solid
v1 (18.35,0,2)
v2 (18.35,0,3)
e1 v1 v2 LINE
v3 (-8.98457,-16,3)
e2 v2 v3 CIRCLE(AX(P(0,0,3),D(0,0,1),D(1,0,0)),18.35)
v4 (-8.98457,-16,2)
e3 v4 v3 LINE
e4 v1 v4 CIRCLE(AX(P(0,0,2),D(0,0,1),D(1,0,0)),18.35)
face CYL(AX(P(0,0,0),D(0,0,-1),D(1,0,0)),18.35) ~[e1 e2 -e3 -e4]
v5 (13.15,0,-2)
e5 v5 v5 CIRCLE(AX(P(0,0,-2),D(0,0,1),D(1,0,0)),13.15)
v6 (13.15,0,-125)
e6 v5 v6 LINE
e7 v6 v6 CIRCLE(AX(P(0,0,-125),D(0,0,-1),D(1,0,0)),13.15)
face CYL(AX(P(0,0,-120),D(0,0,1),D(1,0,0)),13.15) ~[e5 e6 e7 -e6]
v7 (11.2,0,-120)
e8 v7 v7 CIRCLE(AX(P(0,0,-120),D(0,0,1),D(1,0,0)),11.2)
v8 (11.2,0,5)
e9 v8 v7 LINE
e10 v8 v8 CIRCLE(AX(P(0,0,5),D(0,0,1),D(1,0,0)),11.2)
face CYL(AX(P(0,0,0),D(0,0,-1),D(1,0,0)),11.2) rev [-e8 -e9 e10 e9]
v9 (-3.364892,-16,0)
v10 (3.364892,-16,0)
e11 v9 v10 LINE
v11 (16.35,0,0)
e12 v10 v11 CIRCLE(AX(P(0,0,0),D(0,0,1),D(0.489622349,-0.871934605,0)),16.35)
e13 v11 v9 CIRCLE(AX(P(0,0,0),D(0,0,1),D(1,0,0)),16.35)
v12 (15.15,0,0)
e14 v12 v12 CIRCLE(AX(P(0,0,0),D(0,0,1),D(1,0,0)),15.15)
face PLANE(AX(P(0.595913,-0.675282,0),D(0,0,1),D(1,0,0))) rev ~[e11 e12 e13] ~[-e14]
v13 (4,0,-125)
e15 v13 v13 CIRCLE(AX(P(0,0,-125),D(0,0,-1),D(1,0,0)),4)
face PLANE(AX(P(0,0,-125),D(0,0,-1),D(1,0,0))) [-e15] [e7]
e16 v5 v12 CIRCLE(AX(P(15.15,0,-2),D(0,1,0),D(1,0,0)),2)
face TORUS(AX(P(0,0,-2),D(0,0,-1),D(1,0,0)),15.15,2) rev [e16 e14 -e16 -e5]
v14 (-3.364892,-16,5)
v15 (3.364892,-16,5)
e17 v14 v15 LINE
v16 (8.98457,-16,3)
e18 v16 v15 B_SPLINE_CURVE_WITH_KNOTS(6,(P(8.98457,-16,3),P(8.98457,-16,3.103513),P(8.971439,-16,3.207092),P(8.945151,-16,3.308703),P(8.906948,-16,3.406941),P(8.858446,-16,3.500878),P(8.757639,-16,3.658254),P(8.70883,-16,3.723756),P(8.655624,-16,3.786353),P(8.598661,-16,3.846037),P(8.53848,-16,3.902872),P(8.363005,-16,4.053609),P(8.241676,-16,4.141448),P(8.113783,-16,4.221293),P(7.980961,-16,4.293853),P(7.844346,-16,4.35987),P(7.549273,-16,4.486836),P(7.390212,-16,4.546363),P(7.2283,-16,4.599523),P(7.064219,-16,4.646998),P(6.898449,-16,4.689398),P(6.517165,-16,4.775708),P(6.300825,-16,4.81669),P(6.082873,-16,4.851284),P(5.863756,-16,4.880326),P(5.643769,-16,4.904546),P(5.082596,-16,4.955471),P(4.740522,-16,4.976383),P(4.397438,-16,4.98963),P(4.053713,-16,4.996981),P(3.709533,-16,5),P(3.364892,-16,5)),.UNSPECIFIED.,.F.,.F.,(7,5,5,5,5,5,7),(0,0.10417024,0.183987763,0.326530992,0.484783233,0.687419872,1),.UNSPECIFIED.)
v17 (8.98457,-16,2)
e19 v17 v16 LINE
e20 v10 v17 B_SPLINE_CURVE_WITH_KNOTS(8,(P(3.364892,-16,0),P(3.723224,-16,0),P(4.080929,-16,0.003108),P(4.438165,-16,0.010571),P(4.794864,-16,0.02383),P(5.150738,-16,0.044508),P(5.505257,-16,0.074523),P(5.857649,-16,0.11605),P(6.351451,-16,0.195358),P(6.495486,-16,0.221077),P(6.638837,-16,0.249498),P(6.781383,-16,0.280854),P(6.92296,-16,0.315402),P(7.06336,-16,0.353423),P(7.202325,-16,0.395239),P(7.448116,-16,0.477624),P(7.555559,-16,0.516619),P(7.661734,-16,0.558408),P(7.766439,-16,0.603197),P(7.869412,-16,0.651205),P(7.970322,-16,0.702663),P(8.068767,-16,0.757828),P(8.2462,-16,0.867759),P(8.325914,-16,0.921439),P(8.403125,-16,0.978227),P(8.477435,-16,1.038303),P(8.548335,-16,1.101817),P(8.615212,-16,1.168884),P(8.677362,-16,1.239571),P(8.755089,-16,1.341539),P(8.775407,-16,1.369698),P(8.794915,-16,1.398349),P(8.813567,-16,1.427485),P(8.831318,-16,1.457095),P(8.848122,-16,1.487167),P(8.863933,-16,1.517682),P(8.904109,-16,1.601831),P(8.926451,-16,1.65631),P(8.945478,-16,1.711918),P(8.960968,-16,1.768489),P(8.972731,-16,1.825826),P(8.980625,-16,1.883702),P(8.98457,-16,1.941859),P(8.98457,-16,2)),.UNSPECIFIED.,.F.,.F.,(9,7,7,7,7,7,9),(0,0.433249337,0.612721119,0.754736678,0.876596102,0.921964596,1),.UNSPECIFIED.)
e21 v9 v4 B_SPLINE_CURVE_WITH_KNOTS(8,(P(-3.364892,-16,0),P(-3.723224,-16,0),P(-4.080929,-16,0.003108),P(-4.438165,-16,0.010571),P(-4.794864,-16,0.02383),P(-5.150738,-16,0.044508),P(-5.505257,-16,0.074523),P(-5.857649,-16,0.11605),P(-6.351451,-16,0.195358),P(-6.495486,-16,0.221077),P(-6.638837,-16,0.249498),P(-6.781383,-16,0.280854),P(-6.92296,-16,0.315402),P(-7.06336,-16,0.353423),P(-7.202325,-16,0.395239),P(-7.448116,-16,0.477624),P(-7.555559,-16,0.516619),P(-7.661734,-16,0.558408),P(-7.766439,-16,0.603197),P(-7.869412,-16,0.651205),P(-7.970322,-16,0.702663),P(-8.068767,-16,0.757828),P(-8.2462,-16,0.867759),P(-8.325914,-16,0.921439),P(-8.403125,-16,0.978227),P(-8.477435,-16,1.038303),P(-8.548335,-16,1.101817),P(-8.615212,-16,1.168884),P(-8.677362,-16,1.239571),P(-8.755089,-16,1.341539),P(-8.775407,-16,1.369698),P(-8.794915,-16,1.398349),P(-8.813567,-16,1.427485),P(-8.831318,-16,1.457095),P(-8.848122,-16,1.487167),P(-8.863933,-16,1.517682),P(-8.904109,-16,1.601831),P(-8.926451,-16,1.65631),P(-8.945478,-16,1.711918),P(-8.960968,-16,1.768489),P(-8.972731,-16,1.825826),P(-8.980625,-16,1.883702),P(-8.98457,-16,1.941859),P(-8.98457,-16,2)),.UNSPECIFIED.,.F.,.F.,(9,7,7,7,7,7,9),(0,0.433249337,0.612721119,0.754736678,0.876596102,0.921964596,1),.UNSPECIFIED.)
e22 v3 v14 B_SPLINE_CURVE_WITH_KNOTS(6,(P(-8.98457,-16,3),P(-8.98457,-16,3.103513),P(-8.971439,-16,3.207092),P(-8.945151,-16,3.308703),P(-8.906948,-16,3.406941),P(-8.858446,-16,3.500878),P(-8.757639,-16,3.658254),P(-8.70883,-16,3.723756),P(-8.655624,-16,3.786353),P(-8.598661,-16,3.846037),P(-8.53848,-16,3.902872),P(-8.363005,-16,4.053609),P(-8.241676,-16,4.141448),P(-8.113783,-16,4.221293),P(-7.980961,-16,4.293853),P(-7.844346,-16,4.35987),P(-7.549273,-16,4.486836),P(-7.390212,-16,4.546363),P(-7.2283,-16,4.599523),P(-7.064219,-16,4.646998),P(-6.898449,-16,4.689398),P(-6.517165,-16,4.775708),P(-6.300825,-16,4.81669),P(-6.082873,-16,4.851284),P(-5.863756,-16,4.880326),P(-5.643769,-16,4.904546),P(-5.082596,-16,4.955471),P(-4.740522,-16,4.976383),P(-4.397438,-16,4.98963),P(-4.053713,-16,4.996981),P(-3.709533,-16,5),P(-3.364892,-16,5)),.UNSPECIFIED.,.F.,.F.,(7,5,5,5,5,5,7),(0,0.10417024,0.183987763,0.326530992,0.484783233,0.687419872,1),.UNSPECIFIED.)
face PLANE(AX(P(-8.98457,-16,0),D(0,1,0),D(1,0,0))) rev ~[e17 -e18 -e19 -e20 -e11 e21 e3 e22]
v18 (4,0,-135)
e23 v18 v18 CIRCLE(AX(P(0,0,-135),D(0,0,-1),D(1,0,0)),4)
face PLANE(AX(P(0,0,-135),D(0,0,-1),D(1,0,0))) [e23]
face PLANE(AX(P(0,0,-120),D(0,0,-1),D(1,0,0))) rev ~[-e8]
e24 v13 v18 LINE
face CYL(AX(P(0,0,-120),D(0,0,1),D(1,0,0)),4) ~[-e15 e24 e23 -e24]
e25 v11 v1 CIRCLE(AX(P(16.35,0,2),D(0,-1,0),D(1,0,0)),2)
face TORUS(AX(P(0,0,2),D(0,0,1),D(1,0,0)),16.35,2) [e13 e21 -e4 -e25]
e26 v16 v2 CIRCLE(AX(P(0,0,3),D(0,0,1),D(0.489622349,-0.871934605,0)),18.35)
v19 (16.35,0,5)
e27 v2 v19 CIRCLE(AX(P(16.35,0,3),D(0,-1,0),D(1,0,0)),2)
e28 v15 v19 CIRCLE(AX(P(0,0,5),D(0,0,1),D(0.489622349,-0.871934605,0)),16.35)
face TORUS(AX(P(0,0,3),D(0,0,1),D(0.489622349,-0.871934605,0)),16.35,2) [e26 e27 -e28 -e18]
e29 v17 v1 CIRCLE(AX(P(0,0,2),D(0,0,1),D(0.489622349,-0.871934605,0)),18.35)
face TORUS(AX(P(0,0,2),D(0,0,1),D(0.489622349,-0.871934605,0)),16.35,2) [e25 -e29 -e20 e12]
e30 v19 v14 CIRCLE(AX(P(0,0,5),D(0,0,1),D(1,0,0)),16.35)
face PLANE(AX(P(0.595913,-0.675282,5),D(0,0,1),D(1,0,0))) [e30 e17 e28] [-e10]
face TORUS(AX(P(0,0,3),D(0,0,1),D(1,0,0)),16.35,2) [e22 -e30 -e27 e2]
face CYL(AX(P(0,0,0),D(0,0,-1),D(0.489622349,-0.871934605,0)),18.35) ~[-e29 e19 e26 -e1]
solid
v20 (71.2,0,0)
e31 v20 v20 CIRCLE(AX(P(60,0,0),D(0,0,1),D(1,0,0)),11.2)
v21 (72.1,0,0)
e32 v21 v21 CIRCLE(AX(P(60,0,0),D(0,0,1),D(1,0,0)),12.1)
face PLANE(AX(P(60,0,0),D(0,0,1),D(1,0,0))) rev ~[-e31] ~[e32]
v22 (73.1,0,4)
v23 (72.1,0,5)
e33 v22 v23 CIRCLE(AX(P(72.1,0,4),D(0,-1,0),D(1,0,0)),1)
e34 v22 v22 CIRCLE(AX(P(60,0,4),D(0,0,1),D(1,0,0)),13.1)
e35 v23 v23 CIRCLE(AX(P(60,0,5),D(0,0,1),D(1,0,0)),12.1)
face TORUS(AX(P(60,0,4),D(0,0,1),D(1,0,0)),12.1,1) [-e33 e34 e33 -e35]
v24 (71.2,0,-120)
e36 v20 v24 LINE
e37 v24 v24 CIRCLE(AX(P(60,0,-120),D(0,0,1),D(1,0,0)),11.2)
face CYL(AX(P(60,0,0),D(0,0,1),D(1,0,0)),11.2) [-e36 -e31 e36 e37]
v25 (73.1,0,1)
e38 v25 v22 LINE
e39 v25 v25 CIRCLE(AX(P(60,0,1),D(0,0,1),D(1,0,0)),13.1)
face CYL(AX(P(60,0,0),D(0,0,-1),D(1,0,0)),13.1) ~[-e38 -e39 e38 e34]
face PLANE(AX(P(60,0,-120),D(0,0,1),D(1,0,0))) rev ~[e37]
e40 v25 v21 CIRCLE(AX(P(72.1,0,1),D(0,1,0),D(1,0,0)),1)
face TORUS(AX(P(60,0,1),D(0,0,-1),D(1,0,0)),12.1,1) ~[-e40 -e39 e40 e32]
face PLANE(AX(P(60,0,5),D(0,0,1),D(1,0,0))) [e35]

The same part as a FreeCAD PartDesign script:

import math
import FreeCAD as App
import Part
import Sketcher
Q = App.Units.Quantity


def edges_at(feature, points):
    """Names of the edges that pass closest to the given points."""
    edges = feature.Shape.Edges
    near = lambda p: min(range(len(edges)), key=lambda i: edges[i].distToShape(Part.Vertex(*p))[0])
    return sorted({f"Edge{near(p) + 1}" for p in points})

doc = App.newDocument("Part")
body = doc.addObject("PartDesign::Body", "Body")

sketch1 = body.newObject("Sketcher::SketchObject", "Sketch")
sketch1.AttachmentSupport = (doc.getObject("XY_Plane"), [""])
sketch1.MapMode = "FlatFace"
sketch1.addGeometry([
    Part.ArcOfCircle(Part.Circle(App.Vector(0, 0, 0), App.Vector(0, 0, 1), 18), math.radians(-61), math.radians(0)),
    Part.ArcOfCircle(Part.Circle(App.Vector(0, 0, 0), App.Vector(0, 0, 1), 18), math.radians(0), math.radians(241)),
    Part.LineSegment(App.Vector(-9, -16, 0), App.Vector(9, -16, 0)),
    Part.Circle(App.Vector(0, 0, 0), App.Vector(0, 0, 1), 11),
], False)
sketch1.addConstraint([
    Sketcher.Constraint("Tangent", 0, 2, 1, 1),
    Sketcher.Constraint("Coincident", 1, 2, 2, 1),
    Sketcher.Constraint("Coincident", 2, 2, 0, 1),
    Sketcher.Constraint("Horizontal", 2),
    Sketcher.Constraint("Coincident", 0, 3, -1, 1),
    Sketcher.Constraint("Coincident", 3, 3, -1, 1),
    Sketcher.Constraint("Equal", 0, 1),
    Sketcher.Constraint("PointOnObject", 0, 2, -1),
    Sketcher.Constraint("Diameter", 3, Q("22.4 mm")),
    Sketcher.Constraint("Radius", 0, Q("18.35 mm")),
    Sketcher.Constraint("DistanceY", 1, 2, -1, 1, Q("16 mm")),
])
pad1 = body.newObject("PartDesign::Pad", "Pad")
pad1.Profile = sketch1
pad1.Length = 5

sketch2 = body.newObject("Sketcher::SketchObject", "Sketch001")
sketch2.AttachmentSupport = (doc.getObject("XY_Plane"), [""])
sketch2.MapMode = "FlatFace"
sketch2.addGeometry([
    Part.Circle(App.Vector(0, 0, 0), App.Vector(0, 0, 1), 13),
    Part.Circle(App.Vector(0, 0, 0), App.Vector(0, 0, 1), 11),
], False)
sketch2.addConstraint([
    Sketcher.Constraint("Coincident", 0, 3, -1, 1),
    Sketcher.Constraint("Coincident", 1, 3, -1, 1),
    Sketcher.Constraint("Diameter", 0, Q("26.3 mm")),
    Sketcher.Constraint("Diameter", 1, Q("22.4 mm")),
])
pad2 = body.newObject("PartDesign::Pad", "Pad001")
pad2.Profile = sketch2
pad2.Length = 120
pad2.Reversed = True

sketch3 = body.newObject("Sketcher::SketchObject", "Sketch002")
sketch3.AttachmentSupport = (doc.getObject("XY_Plane"), [""])
sketch3.MapMode = "FlatFace"
sketch3.AttachmentOffset = App.Placement(App.Vector(0, 0, -120), App.Rotation())
sketch3.addGeometry([
    Part.Circle(App.Vector(0, 0, 0), App.Vector(0, 0, 1), 13.2),
    Part.Circle(App.Vector(0, 0, 0), App.Vector(0, 0, 1), 4),
], False)
sketch3.addConstraint([
    Sketcher.Constraint("Coincident", 0, 3, -1, 1),
    Sketcher.Constraint("Coincident", 1, 3, -1, 1),
    Sketcher.Constraint("Diameter", 1, Q("8 mm")),
    Sketcher.Constraint("Diameter", 0, Q("26.3 mm")),
])
pad3 = body.newObject("PartDesign::Pad", "Pad002")
pad3.Profile = sketch3
pad3.Length = 5
pad3.Reversed = True

sketch4 = body.newObject("Sketcher::SketchObject", "Sketch003")
sketch4.AttachmentSupport = (doc.getObject("XY_Plane"), [""])
sketch4.MapMode = "FlatFace"
sketch4.AttachmentOffset = App.Placement(App.Vector(0, 0, -120), App.Rotation())
sketch4.addGeometry(Part.Circle(App.Vector(0, 0, 0), App.Vector(0, 0, 1), 4), False)
sketch4.addConstraint([
    Sketcher.Constraint("Coincident", 0, 3, -1, 1),
    Sketcher.Constraint("Diameter", 0, Q("8 mm")),
])
pad4 = body.newObject("PartDesign::Pad", "Pad003")
pad4.Profile = sketch4
pad4.Length = 15
pad4.Reversed = True
doc.recompute()

fillet = body.newObject("PartDesign::Fillet", "Fillet")
fillet.Base = (pad4, edges_at(pad4, [(-9.27, 15.836, 5), (-9.27, 15.836, 0), (-13.15, 0, 0)]))
fillet.Radius = 2
body2 = doc.addObject("PartDesign::Body", "Body001")

sketch5 = body2.newObject("Sketcher::SketchObject", "Sketch004")
sketch5.AttachmentSupport = (doc.getObject("XY_Plane001"), [""])
sketch5.MapMode = "FlatFace"
sketch5.addGeometry(Part.Circle(App.Vector(60, 0, 0), App.Vector(0, 0, 1), 13), False)
sketch5.addConstraint([
    Sketcher.Constraint("PointOnObject", 0, 3, -1),
    Sketcher.Constraint("Diameter", 0, Q("26.2 mm")),
    Sketcher.Constraint("DistanceX", -1, 1, 0, 3, Q("60 mm")),
])
pad5 = body2.newObject("PartDesign::Pad", "Pad004")
pad5.Profile = sketch5
pad5.Length = 5

sketch6 = body2.newObject("Sketcher::SketchObject", "Sketch005")
sketch6.AttachmentSupport = (doc.getObject("XY_Plane001"), [""])
sketch6.MapMode = "FlatFace"
sketch6.addGeometry(Part.Circle(App.Vector(60, 0, 0), App.Vector(0, 0, 1), 11), False)
sketch6.addConstraint([
    Sketcher.Constraint("PointOnObject", 0, 3, -1),
    Sketcher.Constraint("Diameter", 0, Q("22.4 mm")),
    Sketcher.Constraint("DistanceX", -1, 1, 0, 3, Q("60 mm")),
])
pad6 = body2.newObject("PartDesign::Pad", "Pad005")
pad6.Profile = sketch6
pad6.Length = 120
pad6.Reversed = True
doc.recompute()

fillet2 = body2.newObject("PartDesign::Fillet", "Fillet001")
fillet2.Base = (pad6, edges_at(pad6, [(46.9, 0, 5), (46.9, 0, 0)]))
fillet2.Radius = 1

doc.recompute()
